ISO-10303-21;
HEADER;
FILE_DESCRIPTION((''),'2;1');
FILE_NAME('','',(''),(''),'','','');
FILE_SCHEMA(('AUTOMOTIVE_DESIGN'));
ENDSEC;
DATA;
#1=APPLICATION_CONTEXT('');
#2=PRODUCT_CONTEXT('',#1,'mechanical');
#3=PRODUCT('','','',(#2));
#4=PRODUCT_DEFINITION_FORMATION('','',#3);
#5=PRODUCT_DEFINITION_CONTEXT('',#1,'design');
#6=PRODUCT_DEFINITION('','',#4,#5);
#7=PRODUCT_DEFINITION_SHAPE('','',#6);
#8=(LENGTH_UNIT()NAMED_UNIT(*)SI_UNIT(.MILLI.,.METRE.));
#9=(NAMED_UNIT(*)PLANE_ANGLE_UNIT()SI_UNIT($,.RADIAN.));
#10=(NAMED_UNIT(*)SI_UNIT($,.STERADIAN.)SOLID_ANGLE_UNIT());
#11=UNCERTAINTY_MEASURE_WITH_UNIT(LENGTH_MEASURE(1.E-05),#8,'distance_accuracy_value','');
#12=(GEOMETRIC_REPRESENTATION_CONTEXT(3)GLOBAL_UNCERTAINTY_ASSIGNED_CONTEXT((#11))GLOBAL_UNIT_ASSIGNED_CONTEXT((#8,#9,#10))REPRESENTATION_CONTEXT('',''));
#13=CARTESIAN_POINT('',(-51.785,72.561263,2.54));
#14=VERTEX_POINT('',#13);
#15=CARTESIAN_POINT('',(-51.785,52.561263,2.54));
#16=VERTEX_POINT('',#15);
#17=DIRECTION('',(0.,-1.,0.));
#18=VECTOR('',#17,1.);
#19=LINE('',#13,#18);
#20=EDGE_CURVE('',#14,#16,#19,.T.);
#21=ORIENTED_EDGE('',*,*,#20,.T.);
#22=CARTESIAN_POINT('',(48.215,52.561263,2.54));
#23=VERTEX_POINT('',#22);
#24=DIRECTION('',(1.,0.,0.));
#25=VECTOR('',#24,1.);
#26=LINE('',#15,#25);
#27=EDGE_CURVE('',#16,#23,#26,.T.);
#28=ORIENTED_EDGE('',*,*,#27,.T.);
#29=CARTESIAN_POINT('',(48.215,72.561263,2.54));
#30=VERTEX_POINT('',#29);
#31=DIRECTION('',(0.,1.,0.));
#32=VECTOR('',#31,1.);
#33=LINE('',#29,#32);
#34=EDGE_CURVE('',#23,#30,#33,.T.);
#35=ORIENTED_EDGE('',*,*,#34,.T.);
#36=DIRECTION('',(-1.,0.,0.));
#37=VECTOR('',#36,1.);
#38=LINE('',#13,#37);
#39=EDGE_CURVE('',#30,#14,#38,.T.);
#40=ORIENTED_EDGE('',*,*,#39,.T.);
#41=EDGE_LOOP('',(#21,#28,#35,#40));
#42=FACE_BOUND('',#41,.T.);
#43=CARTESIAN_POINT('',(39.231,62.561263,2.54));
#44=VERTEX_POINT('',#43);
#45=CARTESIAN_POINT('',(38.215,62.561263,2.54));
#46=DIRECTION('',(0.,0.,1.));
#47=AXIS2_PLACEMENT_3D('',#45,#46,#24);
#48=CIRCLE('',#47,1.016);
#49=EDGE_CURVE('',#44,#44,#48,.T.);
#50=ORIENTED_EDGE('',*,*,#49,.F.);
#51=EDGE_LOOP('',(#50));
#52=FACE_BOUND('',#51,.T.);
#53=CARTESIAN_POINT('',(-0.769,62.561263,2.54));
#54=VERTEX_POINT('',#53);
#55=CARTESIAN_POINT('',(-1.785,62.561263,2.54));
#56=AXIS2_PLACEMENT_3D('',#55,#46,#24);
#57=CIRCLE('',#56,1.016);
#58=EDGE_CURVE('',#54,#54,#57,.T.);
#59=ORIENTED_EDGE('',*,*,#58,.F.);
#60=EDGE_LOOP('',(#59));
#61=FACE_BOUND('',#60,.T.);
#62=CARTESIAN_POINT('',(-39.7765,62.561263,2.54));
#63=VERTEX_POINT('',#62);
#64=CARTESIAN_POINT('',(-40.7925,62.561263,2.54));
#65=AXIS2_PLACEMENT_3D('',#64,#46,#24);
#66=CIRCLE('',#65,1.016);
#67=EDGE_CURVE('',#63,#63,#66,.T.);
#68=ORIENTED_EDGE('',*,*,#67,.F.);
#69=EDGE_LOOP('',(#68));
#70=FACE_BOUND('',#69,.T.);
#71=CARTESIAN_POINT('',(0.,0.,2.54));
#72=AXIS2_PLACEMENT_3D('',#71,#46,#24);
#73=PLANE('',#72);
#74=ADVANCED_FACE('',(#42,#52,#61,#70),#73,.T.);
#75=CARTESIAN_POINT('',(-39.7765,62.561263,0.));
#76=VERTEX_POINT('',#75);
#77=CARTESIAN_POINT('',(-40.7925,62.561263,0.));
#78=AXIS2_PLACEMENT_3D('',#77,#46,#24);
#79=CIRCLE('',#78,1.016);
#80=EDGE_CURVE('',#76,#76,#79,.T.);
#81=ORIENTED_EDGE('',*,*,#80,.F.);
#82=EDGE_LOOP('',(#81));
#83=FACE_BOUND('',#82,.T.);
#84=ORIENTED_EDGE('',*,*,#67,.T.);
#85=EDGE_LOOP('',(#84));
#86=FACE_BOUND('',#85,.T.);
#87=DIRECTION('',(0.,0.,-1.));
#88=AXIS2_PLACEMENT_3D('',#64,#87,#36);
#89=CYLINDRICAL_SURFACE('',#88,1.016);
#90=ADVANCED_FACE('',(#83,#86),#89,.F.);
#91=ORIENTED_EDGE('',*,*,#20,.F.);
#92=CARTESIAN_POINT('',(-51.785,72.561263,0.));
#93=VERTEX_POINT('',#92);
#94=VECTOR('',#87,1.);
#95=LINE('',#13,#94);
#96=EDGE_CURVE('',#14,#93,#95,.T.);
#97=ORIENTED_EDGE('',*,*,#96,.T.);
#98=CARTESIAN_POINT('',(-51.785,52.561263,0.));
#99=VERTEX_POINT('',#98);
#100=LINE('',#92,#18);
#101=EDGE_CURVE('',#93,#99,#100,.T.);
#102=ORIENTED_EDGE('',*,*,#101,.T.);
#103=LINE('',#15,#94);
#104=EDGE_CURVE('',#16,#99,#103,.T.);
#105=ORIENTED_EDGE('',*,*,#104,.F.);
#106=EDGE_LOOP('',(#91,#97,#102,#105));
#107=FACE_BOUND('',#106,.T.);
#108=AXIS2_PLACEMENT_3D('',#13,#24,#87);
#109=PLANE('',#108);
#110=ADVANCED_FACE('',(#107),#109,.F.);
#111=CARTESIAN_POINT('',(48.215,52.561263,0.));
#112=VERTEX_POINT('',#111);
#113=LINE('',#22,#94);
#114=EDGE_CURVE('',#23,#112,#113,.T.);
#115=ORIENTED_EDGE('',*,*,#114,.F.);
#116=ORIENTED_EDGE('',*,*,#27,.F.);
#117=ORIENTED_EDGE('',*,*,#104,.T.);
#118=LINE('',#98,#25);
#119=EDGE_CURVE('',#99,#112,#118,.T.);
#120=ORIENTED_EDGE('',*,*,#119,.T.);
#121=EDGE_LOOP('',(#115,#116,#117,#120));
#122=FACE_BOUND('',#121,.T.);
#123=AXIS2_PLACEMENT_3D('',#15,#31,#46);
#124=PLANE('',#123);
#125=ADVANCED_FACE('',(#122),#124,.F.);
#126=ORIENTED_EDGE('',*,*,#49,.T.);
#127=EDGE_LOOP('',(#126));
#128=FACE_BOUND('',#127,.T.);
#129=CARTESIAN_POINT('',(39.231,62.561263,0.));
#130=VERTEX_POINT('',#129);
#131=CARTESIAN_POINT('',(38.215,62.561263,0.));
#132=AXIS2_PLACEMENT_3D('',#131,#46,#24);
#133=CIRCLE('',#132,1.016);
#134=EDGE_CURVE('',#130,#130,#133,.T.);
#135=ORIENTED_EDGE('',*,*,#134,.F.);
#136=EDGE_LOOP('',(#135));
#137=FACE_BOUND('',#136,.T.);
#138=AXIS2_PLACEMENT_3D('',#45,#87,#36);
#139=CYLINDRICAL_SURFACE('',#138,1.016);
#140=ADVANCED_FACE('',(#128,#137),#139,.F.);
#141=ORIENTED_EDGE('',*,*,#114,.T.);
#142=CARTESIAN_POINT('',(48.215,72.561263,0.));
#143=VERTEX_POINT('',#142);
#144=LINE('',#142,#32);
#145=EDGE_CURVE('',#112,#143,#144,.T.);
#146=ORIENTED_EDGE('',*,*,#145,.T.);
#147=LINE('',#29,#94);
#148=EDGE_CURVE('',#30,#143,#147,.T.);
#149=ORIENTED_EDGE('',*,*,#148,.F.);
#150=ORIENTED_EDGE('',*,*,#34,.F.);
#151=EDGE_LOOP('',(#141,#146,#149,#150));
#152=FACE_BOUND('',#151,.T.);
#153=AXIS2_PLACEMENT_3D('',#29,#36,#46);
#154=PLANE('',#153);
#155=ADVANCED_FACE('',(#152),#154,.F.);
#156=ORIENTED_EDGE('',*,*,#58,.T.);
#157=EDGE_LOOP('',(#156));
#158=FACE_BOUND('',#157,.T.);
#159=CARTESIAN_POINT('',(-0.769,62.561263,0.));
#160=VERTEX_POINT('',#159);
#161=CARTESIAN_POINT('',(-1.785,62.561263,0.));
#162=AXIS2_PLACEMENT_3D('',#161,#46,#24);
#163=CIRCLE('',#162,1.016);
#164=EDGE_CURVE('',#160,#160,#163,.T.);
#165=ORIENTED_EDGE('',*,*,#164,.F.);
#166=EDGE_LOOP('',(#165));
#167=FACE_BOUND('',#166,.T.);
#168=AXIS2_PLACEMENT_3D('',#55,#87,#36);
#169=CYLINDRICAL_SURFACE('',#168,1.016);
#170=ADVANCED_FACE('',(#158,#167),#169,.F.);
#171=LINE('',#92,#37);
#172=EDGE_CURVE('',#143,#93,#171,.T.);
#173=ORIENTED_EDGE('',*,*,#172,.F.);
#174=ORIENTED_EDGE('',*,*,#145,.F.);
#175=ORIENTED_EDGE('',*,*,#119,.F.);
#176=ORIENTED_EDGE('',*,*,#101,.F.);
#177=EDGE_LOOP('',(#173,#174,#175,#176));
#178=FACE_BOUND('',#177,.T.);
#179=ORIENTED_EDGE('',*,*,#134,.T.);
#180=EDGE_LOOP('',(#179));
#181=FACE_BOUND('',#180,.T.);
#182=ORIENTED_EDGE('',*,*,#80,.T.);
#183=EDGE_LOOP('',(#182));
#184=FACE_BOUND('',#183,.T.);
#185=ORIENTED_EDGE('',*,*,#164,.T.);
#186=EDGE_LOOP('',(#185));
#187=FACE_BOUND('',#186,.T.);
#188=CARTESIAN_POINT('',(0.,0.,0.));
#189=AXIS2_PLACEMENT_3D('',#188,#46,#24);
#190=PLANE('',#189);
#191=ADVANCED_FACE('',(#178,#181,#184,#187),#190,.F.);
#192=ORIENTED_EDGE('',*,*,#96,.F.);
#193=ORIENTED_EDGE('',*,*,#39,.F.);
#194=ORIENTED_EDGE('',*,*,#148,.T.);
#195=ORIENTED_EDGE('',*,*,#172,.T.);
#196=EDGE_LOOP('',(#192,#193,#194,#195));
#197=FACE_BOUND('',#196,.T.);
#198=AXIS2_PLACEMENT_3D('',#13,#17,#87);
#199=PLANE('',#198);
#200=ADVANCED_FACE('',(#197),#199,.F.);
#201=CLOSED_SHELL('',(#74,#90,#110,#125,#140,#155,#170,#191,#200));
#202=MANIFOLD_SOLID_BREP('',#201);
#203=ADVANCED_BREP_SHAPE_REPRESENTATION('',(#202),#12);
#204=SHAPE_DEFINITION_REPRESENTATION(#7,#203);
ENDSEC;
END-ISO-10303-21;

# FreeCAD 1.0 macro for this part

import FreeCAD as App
import Part
import Sketcher
from FreeCAD import Vector
Q = App.Units.Quantity

doc = App.newDocument("Part")
body = doc.addObject("PartDesign::Body", "Body")

sketch1 = body.newObject("Sketcher::SketchObject", "Sketch")
sketch1.AttachmentSupport = (doc.getObject("XY_Plane"), [""])
sketch1.MapMode = "FlatFace"
sketch1.addGeometry(Part.LineSegment(Vector(-51.8, 72.6, 0), Vector(-51.8, 52.6, 0)), False)
sketch1.addGeometry(Part.LineSegment(Vector(-51.8, 52.6, 0), Vector(48.2, 52.6, 0)), False)
sketch1.addGeometry(Part.LineSegment(Vector(48.2, 52.6, 0), Vector(48.2, 72.6, 0)), False)
sketch1.addGeometry(Part.LineSegment(Vector(48.2, 72.6, 0), Vector(-51.8, 72.6, 0)), False)
sketch1.addGeometry(Part.Circle(Vector(-40.8, 62.6, 0), Vector(0, 0, 1), 1), False)
sketch1.addGeometry(Part.Circle(Vector(-1.8, 62.6, 0), Vector(0, 0, 1), 1), False)
sketch1.addGeometry(Part.Circle(Vector(38.2, 62.6, 0), Vector(0, 0, 1), 1), False)
sketch1.addConstraint(Sketcher.Constraint("Coincident", 0, 2, 1, 1))
sketch1.addConstraint(Sketcher.Constraint("Coincident", 1, 2, 2, 1))
sketch1.addConstraint(Sketcher.Constraint("Coincident", 2, 2, 3, 1))
sketch1.addConstraint(Sketcher.Constraint("Coincident", 3, 2, 0, 1))
sketch1.addConstraint(Sketcher.Constraint("Vertical", 0))
sketch1.addConstraint(Sketcher.Constraint("Horizontal", 1))
sketch1.addConstraint(Sketcher.Constraint("Vertical", 2))
sketch1.addConstraint(Sketcher.Constraint("Horizontal", 3))
sketch1.addConstraint(Sketcher.Constraint("Equal", 4, 5))
sketch1.addConstraint(Sketcher.Constraint("Equal", 5, 6))
sketch1.addConstraint(Sketcher.Constraint("Horizontal", 4, 3, 5, 3))
sketch1.addConstraint(Sketcher.Constraint("Horizontal", 5, 3, 6, 3))
sketch1.addConstraint(Sketcher.Constraint("DistanceX", 1, 1, 1, 2, Q("100 mm")))
sketch1.addConstraint(Sketcher.Constraint("DistanceY", 0, 2, 0, 1, Q("20 mm")))
sketch1.addConstraint(Sketcher.Constraint("Diameter", 4, Q("2.032 mm")))
sketch1.addConstraint(Sketcher.Constraint("DistanceX", 5, 3, 6, 3, Q("40 mm")))
sketch1.addConstraint(Sketcher.Constraint("DistanceY", 0, 2, 4, 3, Q("10 mm")))
sketch1.addConstraint(Sketcher.Constraint("DistanceX", 0, 2, 5, 3, Q("50 mm")))
sketch1.addConstraint(Sketcher.Constraint("DistanceX", 5, 3, -1, 1, Q("1.785 mm")))
sketch1.addConstraint(Sketcher.Constraint("DistanceX", 4, 3, -1, 1, Q("40.7925 mm")))
sketch1.addConstraint(Sketcher.Constraint("DistanceY", -1, 1, 4, 3, Q("62.561263 mm")))
pad1 = body.newObject("PartDesign::Pad", "Pad")
pad1.Profile = sketch1
pad1.Length = 2.54

doc.recompute()
